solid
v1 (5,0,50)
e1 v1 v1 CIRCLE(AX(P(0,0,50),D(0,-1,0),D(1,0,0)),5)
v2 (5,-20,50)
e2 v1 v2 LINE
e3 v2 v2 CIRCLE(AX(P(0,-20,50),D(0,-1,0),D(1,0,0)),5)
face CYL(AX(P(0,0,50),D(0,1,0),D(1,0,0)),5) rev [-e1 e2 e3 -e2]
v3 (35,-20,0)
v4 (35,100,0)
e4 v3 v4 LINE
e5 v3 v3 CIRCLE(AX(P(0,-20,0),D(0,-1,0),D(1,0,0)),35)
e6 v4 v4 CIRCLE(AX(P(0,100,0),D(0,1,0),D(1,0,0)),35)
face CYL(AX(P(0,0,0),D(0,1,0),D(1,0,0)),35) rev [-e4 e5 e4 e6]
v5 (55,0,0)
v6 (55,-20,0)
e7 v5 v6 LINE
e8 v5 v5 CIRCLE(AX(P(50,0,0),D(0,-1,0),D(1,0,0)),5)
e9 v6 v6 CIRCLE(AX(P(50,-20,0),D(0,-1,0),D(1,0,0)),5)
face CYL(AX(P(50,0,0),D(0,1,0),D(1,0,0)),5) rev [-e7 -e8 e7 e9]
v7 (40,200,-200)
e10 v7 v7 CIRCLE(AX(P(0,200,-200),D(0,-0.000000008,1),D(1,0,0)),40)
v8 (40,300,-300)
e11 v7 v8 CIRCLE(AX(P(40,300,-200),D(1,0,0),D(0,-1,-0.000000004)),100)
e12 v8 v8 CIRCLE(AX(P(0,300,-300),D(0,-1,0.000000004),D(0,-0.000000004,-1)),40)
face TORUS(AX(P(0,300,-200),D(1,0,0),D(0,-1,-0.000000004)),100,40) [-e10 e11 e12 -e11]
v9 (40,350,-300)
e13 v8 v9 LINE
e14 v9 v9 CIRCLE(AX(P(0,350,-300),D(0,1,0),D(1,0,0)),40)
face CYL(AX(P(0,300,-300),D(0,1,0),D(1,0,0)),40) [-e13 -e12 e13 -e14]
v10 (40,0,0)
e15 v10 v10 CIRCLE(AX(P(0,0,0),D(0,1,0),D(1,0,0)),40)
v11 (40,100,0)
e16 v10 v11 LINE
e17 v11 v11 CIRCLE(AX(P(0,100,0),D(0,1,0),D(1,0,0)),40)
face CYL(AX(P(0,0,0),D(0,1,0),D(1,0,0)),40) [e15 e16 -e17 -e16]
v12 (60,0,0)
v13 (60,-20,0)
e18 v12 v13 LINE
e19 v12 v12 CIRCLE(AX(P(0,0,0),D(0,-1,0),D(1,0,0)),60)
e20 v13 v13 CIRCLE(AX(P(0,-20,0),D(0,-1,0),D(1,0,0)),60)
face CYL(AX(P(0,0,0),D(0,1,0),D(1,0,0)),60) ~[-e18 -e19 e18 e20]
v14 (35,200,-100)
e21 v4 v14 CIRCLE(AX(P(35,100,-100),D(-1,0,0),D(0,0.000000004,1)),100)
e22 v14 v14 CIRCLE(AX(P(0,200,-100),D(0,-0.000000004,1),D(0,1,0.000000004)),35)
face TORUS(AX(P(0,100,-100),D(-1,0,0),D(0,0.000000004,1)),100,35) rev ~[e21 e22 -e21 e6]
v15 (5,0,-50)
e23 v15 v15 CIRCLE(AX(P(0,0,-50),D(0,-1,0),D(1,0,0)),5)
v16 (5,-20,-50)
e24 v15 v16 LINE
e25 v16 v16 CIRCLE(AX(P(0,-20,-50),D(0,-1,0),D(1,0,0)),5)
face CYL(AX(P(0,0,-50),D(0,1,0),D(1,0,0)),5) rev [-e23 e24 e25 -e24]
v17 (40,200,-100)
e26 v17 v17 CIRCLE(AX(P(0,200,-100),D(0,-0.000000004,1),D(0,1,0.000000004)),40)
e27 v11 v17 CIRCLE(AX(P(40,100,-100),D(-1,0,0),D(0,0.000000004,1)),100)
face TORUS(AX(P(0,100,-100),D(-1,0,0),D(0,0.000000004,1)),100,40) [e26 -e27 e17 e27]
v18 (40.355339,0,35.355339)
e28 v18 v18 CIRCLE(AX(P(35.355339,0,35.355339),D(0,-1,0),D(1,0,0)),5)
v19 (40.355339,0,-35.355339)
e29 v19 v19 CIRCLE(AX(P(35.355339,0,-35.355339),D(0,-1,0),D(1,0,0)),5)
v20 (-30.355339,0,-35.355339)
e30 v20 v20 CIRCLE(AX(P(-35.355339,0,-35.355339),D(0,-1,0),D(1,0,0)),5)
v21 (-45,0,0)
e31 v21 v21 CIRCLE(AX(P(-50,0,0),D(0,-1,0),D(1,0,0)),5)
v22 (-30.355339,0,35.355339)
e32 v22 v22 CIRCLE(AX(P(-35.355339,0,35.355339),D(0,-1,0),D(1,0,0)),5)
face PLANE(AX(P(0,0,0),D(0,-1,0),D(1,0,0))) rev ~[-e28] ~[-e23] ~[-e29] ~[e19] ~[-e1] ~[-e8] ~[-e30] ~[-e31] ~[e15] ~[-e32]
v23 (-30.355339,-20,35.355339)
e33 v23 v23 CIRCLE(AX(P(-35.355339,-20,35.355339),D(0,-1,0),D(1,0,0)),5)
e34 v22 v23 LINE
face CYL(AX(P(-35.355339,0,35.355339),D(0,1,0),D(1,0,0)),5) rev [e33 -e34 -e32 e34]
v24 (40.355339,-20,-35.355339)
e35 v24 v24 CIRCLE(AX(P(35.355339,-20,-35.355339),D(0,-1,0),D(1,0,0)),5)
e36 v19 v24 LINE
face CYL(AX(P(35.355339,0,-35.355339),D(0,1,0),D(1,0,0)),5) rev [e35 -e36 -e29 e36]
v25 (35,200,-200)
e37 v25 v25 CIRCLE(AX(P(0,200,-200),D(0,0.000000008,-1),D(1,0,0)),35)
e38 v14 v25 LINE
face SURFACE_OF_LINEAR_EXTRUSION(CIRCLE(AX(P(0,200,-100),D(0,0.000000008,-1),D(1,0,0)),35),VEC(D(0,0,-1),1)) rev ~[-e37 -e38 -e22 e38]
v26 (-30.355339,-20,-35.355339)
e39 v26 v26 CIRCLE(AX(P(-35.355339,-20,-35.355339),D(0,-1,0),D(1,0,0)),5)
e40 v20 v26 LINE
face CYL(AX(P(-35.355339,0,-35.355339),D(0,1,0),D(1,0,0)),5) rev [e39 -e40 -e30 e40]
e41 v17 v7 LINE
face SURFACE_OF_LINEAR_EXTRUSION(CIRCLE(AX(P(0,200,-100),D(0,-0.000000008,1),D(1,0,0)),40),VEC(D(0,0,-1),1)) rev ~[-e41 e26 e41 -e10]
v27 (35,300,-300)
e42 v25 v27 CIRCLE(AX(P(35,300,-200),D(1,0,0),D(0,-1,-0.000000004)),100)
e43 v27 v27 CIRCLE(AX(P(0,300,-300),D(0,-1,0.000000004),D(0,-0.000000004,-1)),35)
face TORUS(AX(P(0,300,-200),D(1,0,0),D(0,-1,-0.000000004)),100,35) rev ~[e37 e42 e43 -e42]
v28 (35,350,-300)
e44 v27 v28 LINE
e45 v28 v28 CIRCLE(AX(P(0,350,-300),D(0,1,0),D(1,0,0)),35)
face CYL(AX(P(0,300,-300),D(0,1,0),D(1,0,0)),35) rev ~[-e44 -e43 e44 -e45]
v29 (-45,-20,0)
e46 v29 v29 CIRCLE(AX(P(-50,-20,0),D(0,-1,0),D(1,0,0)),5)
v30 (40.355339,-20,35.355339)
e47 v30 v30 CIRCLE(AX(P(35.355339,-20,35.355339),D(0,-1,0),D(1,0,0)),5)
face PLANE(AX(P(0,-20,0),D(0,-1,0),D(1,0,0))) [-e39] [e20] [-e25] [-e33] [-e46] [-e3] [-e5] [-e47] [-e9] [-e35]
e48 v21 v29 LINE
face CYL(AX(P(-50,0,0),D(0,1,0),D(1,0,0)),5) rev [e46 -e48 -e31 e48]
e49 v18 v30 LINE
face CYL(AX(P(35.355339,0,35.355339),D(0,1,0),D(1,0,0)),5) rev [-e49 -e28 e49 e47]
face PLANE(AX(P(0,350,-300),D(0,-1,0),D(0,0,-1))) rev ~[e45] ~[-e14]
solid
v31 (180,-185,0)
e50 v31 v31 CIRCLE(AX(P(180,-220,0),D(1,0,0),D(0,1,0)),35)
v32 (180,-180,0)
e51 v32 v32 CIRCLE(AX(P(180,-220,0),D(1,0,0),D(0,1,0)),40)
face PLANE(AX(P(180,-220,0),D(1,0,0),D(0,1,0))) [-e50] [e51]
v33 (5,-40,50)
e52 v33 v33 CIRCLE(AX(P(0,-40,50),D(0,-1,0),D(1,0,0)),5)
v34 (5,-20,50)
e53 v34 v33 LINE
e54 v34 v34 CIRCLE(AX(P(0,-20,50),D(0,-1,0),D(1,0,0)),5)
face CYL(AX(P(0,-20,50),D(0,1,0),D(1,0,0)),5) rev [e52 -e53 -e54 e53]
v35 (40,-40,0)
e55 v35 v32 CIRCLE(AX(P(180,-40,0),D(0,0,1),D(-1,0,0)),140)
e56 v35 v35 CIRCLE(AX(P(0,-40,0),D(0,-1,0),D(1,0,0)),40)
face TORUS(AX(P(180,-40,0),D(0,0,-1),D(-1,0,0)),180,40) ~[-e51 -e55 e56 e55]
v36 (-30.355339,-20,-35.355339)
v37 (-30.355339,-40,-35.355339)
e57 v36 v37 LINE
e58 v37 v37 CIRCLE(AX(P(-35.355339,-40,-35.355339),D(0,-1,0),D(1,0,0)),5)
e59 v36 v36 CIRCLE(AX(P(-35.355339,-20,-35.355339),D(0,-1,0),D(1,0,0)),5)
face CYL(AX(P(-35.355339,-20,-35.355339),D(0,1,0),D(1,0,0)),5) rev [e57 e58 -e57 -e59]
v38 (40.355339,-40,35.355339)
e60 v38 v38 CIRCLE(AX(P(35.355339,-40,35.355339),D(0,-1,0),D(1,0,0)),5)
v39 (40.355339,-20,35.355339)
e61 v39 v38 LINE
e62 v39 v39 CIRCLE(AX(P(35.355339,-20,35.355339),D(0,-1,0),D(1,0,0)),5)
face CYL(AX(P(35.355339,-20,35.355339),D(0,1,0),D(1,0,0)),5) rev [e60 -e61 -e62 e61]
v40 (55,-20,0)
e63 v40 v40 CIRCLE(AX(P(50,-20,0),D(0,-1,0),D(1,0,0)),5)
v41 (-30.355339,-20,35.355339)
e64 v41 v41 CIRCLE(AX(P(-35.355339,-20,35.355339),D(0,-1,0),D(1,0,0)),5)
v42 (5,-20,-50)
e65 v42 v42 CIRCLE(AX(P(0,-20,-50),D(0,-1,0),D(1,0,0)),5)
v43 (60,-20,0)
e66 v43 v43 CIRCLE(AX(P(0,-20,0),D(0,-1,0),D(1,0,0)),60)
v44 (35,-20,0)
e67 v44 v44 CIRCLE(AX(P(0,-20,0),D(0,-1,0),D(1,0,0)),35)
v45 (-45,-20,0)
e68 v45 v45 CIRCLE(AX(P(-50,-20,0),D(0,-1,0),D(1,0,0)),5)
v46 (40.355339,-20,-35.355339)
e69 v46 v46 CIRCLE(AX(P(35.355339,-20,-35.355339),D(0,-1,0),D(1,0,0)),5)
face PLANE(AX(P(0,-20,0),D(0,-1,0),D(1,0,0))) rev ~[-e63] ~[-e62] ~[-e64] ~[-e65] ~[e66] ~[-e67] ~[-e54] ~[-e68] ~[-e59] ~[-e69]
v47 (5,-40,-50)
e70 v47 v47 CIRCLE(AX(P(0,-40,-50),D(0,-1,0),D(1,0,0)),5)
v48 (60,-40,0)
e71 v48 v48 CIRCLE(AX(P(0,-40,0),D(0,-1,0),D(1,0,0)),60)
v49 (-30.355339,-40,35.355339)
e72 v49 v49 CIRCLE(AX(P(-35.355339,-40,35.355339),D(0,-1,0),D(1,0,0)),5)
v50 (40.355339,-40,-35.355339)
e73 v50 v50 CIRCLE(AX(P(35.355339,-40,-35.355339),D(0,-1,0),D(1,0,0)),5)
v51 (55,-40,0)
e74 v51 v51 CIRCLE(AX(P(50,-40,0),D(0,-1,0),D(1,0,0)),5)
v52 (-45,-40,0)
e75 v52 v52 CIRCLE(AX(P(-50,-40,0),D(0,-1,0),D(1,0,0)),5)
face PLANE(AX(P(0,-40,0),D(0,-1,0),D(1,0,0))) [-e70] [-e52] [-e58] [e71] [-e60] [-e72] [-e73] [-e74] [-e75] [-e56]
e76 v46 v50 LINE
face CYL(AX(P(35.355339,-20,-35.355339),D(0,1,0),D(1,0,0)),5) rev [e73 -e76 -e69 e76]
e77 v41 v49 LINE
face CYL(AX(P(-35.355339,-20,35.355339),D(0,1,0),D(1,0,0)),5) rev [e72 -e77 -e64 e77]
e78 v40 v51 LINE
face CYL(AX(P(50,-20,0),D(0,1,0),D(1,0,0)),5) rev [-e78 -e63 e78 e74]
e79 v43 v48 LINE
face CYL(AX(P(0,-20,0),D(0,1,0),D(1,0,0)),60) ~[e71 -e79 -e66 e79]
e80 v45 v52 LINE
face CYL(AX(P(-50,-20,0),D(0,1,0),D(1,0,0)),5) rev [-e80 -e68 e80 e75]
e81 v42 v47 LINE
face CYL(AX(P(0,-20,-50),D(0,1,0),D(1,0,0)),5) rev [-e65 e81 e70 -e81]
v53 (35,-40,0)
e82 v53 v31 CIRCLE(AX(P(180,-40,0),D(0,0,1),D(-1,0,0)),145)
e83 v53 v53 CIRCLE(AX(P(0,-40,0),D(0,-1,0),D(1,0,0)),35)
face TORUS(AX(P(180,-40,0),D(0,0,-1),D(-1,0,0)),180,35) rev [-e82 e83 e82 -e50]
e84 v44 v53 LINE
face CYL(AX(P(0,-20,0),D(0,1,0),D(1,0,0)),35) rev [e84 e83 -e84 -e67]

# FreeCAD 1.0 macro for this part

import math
import FreeCAD as App
import Part
import Sketcher
from FreeCAD import Vector
Q = App.Units.Quantity

doc = App.newDocument("Part")
body = doc.addObject("PartDesign::Body", "Body")

# Sketch on XZ plane
sketch1 = doc.addObject("Sketcher::SketchObject", "Sketch")
body.addObject(sketch1)
sketch1.AttachmentSupport = (doc.XZ_Plane, [""])
sketch1.MapMode = "FlatFace"
sketch1.addGeometry(Part.Circle(Vector(0, 0, 0), Vector(0, 0, 1), 60), False)
sketch1.addGeometry(Part.Circle(Vector(-35, -35, 0), Vector(0, 0, 1), 5), False)
sketch1.addGeometry(Part.Circle(Vector(0, -50, 0), Vector(0, 0, 1), 5), False)
sketch1.addGeometry(Part.Circle(Vector(35, -35, 0), Vector(0, 0, 1), 5), False)
sketch1.addGeometry(Part.Circle(Vector(-50, 0, 0), Vector(0, 0, 1), 5), False)
sketch1.addGeometry(Part.Circle(Vector(-35, 35, 0), Vector(0, 0, 1), 5), False)
sketch1.addGeometry(Part.Circle(Vector(0, 0, 0), Vector(0, 0, 1), 35), False)
sketch1.addGeometry(Part.Circle(Vector(50, 0, 0), Vector(0, 0, 1), 5), False)
sketch1.addGeometry(Part.Circle(Vector(0, 50, 0), Vector(0, 0, 1), 5), False)
sketch1.addGeometry(Part.Circle(Vector(35, 35, 0), Vector(0, 0, 1), 5), False)
sketch1.addConstraint(Sketcher.Constraint("Coincident", 0, 3, -1, 1))
sketch1.addConstraint(Sketcher.Constraint("Coincident", 6, 3, -1, 1))
sketch1.addConstraint(Sketcher.Constraint("Equal", 1, 2))
sketch1.addConstraint(Sketcher.Constraint("Equal", 2, 3))
sketch1.addConstraint(Sketcher.Constraint("Equal", 3, 4))
sketch1.addConstraint(Sketcher.Constraint("Equal", 4, 5))
sketch1.addConstraint(Sketcher.Constraint("Equal", 5, 7))
sketch1.addConstraint(Sketcher.Constraint("Equal", 7, 8))
sketch1.addConstraint(Sketcher.Constraint("Equal", 8, 9))
sketch1.addConstraint(Sketcher.Constraint("Symmetric", 3, 3, 5, 3, -1, 1))
sketch1.addConstraint(Sketcher.Constraint("Symmetric", 4, 3, 7, 3, -1, 1))
sketch1.addConstraint(Sketcher.Constraint("Symmetric", 2, 3, 8, 3, -1, 1))
sketch1.addConstraint(Sketcher.Constraint("Symmetric", 1, 3, 9, 3, -1, 1))
sketch1.addConstraint(Sketcher.Constraint("Symmetric", 1, 3, 3, 3, -2))
sketch1.addConstraint(Sketcher.Constraint("PointOnObject", 2, 3, -2))
sketch1.addConstraint(Sketcher.Constraint("PointOnObject", 4, 3, -1))
sketch1.addConstraint(Sketcher.Constraint("Diameter", 0, Q("120 mm")))
sketch1.addConstraint(Sketcher.Constraint("Diameter", 1, Q("10 mm")))
sketch1.addConstraint(Sketcher.Constraint("Diameter", 6, Q("70 mm")))
sketch1.addConstraint(Sketcher.Constraint("DistanceY", 2, 3, -1, 1, Q("50 mm")))
sketch1.addConstraint(Sketcher.Constraint("DistanceX", 4, 3, -1, 1, Q("50 mm")))
sketch1.addConstraint(Sketcher.Constraint("DistanceX", 1, 3, -1, 1, Q("35.355339 mm")))
sketch1.addConstraint(Sketcher.Constraint("DistanceY", 1, 3, -1, 1, Q("35.355339 mm")))
pad1 = doc.addObject("PartDesign::Pad", "Pad")
body.addObject(pad1)
pad1.Profile = sketch1
pad1.Length = 20

# Sketch on XZ plane
sketch2 = doc.addObject("Sketcher::SketchObject", "Sketch001")
body.addObject(sketch2)
sketch2.AttachmentSupport = (doc.XZ_Plane, [""])
sketch2.MapMode = "FlatFace"
sketch2.addGeometry(Part.Circle(Vector(0, 0, 0), Vector(0, 0, 1), 40), False)
sketch2.addGeometry(Part.Circle(Vector(0, 0, 0), Vector(0, 0, 1), 35), False)
sketch2.addConstraint(Sketcher.Constraint("Coincident", 0, 3, -1, 1))
sketch2.addConstraint(Sketcher.Constraint("Coincident", 1, 3, -1, 1))
sketch2.addConstraint(Sketcher.Constraint("Diameter", 0, Q("80 mm")))
sketch2.addConstraint(Sketcher.Constraint("Diameter", 1, Q("70 mm")))

# Sketch on YZ plane
sketch3 = doc.addObject("Sketcher::SketchObject", "Sketch002")
body.addObject(sketch3)
sketch3.AttachmentSupport = (doc.YZ_Plane, [""])
sketch3.MapMode = "FlatFace"
sketch3.addGeometry(Part.LineSegment(Vector(0, 0, 0), Vector(100, 0, 0)), False)
sketch3.addGeometry(Part.ArcOfCircle(Part.Circle(Vector(100, -100, 0), Vector(0, 0, 1), 100), math.radians(0), math.radians(90)), False)
sketch3.addGeometry(Part.LineSegment(Vector(200, -100, 0), Vector(200, -200, 0)), False)
sketch3.addGeometry(Part.ArcOfCircle(Part.Circle(Vector(300, -200, 0), Vector(0, 0, 1), 100), math.radians(-180), math.radians(-90)), False)
sketch3.addGeometry(Part.LineSegment(Vector(300, -300, 0), Vector(350, -300, 0)), False)
sketch3.addConstraint(Sketcher.Constraint("Tangent", 0, 2, 1, 2))
sketch3.addConstraint(Sketcher.Constraint("Tangent", 1, 1, 2, 1))
sketch3.addConstraint(Sketcher.Constraint("Tangent", 2, 2, 3, 1))
sketch3.addConstraint(Sketcher.Constraint("Tangent", 3, 2, 4, 1))
sketch3.addConstraint(Sketcher.Constraint("Horizontal", 0))
sketch3.addConstraint(Sketcher.Constraint("Vertical", 2))
sketch3.addConstraint(Sketcher.Constraint("Horizontal", 4))
sketch3.addConstraint(Sketcher.Constraint("Coincident", 0, 1, -1, 1))
sketch3.addConstraint(Sketcher.Constraint("Equal", 1, 3))
sketch3.addConstraint(Sketcher.Constraint("Equal", 0, 2))
sketch3.addConstraint(Sketcher.Constraint("Radius", 1, Q("100 mm")))
sketch3.addConstraint(Sketcher.Constraint("DistanceX", 0, 1, 0, 2, Q("100 mm")))
sketch3.addConstraint(Sketcher.Constraint("DistanceX", 4, 1, 4, 2, Q("50 mm")))
doc.recompute()

additivepipe = doc.addObject("PartDesign::AdditivePipe", "AdditivePipe")
body.addObject(additivepipe)
additivepipe.Profile = sketch2
additivepipe.Spine = (sketch3, ["Edge1", "Edge2", "Edge3", "Edge4", "Edge5"])
body2 = doc.addObject("PartDesign::Body", "Body001")

# Sketch on XZ plane
sketch4 = doc.addObject("Sketcher::SketchObject", "Sketch003")
body2.addObject(sketch4)
sketch4.AttachmentSupport = (doc.getObject("XZ_Plane001"), [""])
sketch4.MapMode = "FlatFace"
sketch4.AttachmentOffset = App.Placement(Vector(0, 0, 20), App.Rotation())
sketch4.addGeometry(Part.Circle(Vector(0, 0, 0), Vector(0, 0, 1), 60), False)
sketch4.addGeometry(Part.Circle(Vector(-35, -35, 0), Vector(0, 0, 1), 5), False)
sketch4.addGeometry(Part.Circle(Vector(0, -50, 0), Vector(0, 0, 1), 5), False)
sketch4.addGeometry(Part.Circle(Vector(35, -35, 0), Vector(0, 0, 1), 5), False)
sketch4.addGeometry(Part.Circle(Vector(-50, 0, 0), Vector(0, 0, 1), 5), False)
sketch4.addGeometry(Part.Circle(Vector(-35, 35, 0), Vector(0, 0, 1), 5), False)
sketch4.addGeometry(Part.Circle(Vector(0, 0, 0), Vector(0, 0, 1), 35), False)
sketch4.addGeometry(Part.Circle(Vector(50, 0, 0), Vector(0, 0, 1), 5), False)
sketch4.addGeometry(Part.Circle(Vector(0, 50, 0), Vector(0, 0, 1), 5), False)
sketch4.addGeometry(Part.Circle(Vector(35, 35, 0), Vector(0, 0, 1), 5), False)
sketch4.addConstraint(Sketcher.Constraint("Coincident", 0, 3, -1, 1))
sketch4.addConstraint(Sketcher.Constraint("Coincident", 6, 3, -1, 1))
sketch4.addConstraint(Sketcher.Constraint("Equal", 1, 2))
sketch4.addConstraint(Sketcher.Constraint("Equal", 2, 3))
sketch4.addConstraint(Sketcher.Constraint("Equal", 3, 4))
sketch4.addConstraint(Sketcher.Constraint("Equal", 4, 5))
sketch4.addConstraint(Sketcher.Constraint("Equal", 5, 7))
sketch4.addConstraint(Sketcher.Constraint("Equal", 7, 8))
sketch4.addConstraint(Sketcher.Constraint("Equal", 8, 9))
sketch4.addConstraint(Sketcher.Constraint("Symmetric", 3, 3, 5, 3, -1, 1))
sketch4.addConstraint(Sketcher.Constraint("Symmetric", 4, 3, 7, 3, -1, 1))
sketch4.addConstraint(Sketcher.Constraint("Symmetric", 2, 3, 8, 3, -1, 1))
sketch4.addConstraint(Sketcher.Constraint("Symmetric", 1, 3, 9, 3, -1, 1))
sketch4.addConstraint(Sketcher.Constraint("Symmetric", 1, 3, 3, 3, -2))
sketch4.addConstraint(Sketcher.Constraint("PointOnObject", 2, 3, -2))
sketch4.addConstraint(Sketcher.Constraint("PointOnObject", 4, 3, -1))
sketch4.addConstraint(Sketcher.Constraint("Diameter", 0, Q("120 mm")))
sketch4.addConstraint(Sketcher.Constraint("Diameter", 1, Q("10 mm")))
sketch4.addConstraint(Sketcher.Constraint("Diameter", 6, Q("70 mm")))
sketch4.addConstraint(Sketcher.Constraint("DistanceY", 2, 3, -1, 1, Q("50 mm")))
sketch4.addConstraint(Sketcher.Constraint("DistanceX", 4, 3, -1, 1, Q("50 mm")))
sketch4.addConstraint(Sketcher.Constraint("DistanceX", 1, 3, -1, 1, Q("35.355339 mm")))
sketch4.addConstraint(Sketcher.Constraint("DistanceY", 1, 3, -1, 1, Q("35.355339 mm")))
pad2 = doc.addObject("PartDesign::Pad", "Pad001")
body2.addObject(pad2)
pad2.Profile = sketch4
pad2.Length = 20

# Sketch on XZ plane
sketch5 = doc.addObject("Sketcher::SketchObject", "Sketch004")
body2.addObject(sketch5)
sketch5.AttachmentSupport = (doc.getObject("XZ_Plane001"), [""])
sketch5.MapMode = "FlatFace"
sketch5.AttachmentOffset = App.Placement(Vector(0, 0, 40), App.Rotation())
sketch5.addGeometry(Part.Circle(Vector(0, 0, 0), Vector(0, 0, 1), 40), False)
sketch5.addGeometry(Part.Circle(Vector(0, 0, 0), Vector(0, 0, 1), 35), False)
sketch5.addGeometry(Part.LineSegment(Vector(180, 0, 0), Vector(180, -10, 0)), True)  # axis
sketch5.addConstraint(Sketcher.Constraint("Vertical", 2))
sketch5.addConstraint(Sketcher.Constraint("Coincident", 0, 3, -1, 1))
sketch5.addConstraint(Sketcher.Constraint("Coincident", 1, 3, -1, 1))
sketch5.addConstraint(Sketcher.Constraint("PointOnObject", 2, 1, -1))
sketch5.addConstraint(Sketcher.Constraint("Diameter", 0, Q("80 mm")))
sketch5.addConstraint(Sketcher.Constraint("Diameter", 1, Q("70 mm")))
sketch5.addConstraint(Sketcher.Constraint("DistanceY", 2, 2, 2, 1, Q("10 mm")))
sketch5.addConstraint(Sketcher.Constraint("DistanceX", -1, 1, 2, 1, Q("180 mm")))
revolution = doc.addObject("PartDesign::Revolution", "Revolution")
body2.addObject(revolution)
revolution.Profile = sketch5
revolution.ReferenceAxis = (sketch5, ["Axis0"])
revolution.Angle = 90
revolution.Reversed = True

doc.recompute()
